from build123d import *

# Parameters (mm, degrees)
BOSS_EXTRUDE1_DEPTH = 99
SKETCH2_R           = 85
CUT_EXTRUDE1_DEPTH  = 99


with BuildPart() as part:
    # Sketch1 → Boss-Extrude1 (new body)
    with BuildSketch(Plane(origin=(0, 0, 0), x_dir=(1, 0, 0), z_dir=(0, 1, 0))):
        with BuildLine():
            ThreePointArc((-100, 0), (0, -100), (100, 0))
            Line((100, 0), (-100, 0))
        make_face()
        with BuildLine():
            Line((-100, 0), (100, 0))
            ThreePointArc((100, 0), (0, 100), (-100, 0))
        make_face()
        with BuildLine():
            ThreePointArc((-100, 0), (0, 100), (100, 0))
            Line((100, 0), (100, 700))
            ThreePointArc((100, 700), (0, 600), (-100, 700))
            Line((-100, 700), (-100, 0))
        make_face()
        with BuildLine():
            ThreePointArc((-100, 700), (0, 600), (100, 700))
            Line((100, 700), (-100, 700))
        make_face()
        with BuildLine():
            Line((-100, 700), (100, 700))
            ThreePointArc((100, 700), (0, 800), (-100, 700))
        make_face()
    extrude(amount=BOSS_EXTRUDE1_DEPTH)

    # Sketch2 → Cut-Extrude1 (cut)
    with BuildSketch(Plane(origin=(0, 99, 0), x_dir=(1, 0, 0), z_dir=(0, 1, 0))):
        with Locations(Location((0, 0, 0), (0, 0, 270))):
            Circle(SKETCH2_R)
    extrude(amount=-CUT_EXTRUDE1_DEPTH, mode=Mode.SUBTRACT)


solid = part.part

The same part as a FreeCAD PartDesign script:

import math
import FreeCAD as App
import Part
import Sketcher

V = App.Vector

doc = App.newDocument("Part")
params = doc.addObject("Spreadsheet::Sheet", "Params")
for row, (alias, value) in enumerate([
    ("sketch1_radius", "100 mm"),
    ("sketch1_height", "700 mm"),
    ("pad1_length", "99 mm"),
    ("sketch2_diameter", "170 mm"),
    ("pocket1_length", "99 mm"),
], start=1):
    params.set(f"A{row}", alias)
    params.set(f"B{row}", "=" + value)
    params.setAlias(f"B{row}", alias)

body = doc.addObject("PartDesign::Body", "Body")

sketch1 = body.newObject("Sketcher::SketchObject", "Sketch")
sketch1.AttachmentSupport = (doc.getObject("XZ_Plane"), [""])
sketch1.MapMode = "FlatFace"
sketch1.addGeometry(Part.LineSegment(V(100, 0, 0), V(100, -700, 0)), False)
sketch1.addGeometry(Part.ArcOfCircle(Part.Circle(V(0, -700, 0), V(0, 0, 1), 100), math.radians(180), math.radians(360)), False)
sketch1.addGeometry(Part.LineSegment(V(-100, -700, 0), V(-100, 0, 0)), False)
sketch1.addGeometry(Part.ArcOfCircle(Part.Circle(V(0, 0, 0), V(0, 0, 1), 100), math.radians(0), math.radians(180)), False)
sketch1.addConstraint(Sketcher.Constraint("Tangent", 0, 2, 1, 2))
sketch1.addConstraint(Sketcher.Constraint("Tangent", 1, 1, 2, 1))
sketch1.addConstraint(Sketcher.Constraint("Tangent", 2, 2, 3, 2))
sketch1.addConstraint(Sketcher.Constraint("Tangent", 3, 1, 0, 1))
sketch1.addConstraint(Sketcher.Constraint("Vertical", 0))
sketch1.addConstraint(Sketcher.Constraint("Vertical", 2))
sketch1.addConstraint(Sketcher.Constraint("Coincident", 3, 3, -1, 1))
sketch1.addConstraint(Sketcher.Constraint("Radius", 1, 100.0))
sketch1.addConstraint(Sketcher.Constraint("DistanceY", 0, 2, 0, 1, 700.0))
sketch1.setExpression("Constraints[7]", "Params.sketch1_radius")
sketch1.setExpression("Constraints[8]", "Params.sketch1_height")
pad1 = body.newObject("PartDesign::Pad", "Pad")
pad1.Profile = sketch1
pad1.setExpression("Length", "Params.pad1_length")
pad1.Reversed = True

sketch2 = body.newObject("Sketcher::SketchObject", "Sketch001")
sketch2.AttachmentSupport = (doc.getObject("XZ_Plane"), [""])
sketch2.MapMode = "FlatFace"
sketch2.AttachmentOffset = App.Placement(V(0, 0, -99), App.Rotation())
sketch2.addGeometry(Part.Circle(V(0, 0, 0), V(0, 0, 1), 85), False)
sketch2.addConstraint(Sketcher.Constraint("Coincident", 0, 3, -1, 1))
sketch2.addConstraint(Sketcher.Constraint("Diameter", 0, 170.0))
sketch2.setExpression("Constraints[1]", "Params.sketch2_diameter")
pocket1 = body.newObject("PartDesign::Pocket", "Pocket")
pocket1.Profile = sketch2
pocket1.setExpression("Length", "Params.pocket1_length")
pocket1.Reversed = True

doc.recompute()
